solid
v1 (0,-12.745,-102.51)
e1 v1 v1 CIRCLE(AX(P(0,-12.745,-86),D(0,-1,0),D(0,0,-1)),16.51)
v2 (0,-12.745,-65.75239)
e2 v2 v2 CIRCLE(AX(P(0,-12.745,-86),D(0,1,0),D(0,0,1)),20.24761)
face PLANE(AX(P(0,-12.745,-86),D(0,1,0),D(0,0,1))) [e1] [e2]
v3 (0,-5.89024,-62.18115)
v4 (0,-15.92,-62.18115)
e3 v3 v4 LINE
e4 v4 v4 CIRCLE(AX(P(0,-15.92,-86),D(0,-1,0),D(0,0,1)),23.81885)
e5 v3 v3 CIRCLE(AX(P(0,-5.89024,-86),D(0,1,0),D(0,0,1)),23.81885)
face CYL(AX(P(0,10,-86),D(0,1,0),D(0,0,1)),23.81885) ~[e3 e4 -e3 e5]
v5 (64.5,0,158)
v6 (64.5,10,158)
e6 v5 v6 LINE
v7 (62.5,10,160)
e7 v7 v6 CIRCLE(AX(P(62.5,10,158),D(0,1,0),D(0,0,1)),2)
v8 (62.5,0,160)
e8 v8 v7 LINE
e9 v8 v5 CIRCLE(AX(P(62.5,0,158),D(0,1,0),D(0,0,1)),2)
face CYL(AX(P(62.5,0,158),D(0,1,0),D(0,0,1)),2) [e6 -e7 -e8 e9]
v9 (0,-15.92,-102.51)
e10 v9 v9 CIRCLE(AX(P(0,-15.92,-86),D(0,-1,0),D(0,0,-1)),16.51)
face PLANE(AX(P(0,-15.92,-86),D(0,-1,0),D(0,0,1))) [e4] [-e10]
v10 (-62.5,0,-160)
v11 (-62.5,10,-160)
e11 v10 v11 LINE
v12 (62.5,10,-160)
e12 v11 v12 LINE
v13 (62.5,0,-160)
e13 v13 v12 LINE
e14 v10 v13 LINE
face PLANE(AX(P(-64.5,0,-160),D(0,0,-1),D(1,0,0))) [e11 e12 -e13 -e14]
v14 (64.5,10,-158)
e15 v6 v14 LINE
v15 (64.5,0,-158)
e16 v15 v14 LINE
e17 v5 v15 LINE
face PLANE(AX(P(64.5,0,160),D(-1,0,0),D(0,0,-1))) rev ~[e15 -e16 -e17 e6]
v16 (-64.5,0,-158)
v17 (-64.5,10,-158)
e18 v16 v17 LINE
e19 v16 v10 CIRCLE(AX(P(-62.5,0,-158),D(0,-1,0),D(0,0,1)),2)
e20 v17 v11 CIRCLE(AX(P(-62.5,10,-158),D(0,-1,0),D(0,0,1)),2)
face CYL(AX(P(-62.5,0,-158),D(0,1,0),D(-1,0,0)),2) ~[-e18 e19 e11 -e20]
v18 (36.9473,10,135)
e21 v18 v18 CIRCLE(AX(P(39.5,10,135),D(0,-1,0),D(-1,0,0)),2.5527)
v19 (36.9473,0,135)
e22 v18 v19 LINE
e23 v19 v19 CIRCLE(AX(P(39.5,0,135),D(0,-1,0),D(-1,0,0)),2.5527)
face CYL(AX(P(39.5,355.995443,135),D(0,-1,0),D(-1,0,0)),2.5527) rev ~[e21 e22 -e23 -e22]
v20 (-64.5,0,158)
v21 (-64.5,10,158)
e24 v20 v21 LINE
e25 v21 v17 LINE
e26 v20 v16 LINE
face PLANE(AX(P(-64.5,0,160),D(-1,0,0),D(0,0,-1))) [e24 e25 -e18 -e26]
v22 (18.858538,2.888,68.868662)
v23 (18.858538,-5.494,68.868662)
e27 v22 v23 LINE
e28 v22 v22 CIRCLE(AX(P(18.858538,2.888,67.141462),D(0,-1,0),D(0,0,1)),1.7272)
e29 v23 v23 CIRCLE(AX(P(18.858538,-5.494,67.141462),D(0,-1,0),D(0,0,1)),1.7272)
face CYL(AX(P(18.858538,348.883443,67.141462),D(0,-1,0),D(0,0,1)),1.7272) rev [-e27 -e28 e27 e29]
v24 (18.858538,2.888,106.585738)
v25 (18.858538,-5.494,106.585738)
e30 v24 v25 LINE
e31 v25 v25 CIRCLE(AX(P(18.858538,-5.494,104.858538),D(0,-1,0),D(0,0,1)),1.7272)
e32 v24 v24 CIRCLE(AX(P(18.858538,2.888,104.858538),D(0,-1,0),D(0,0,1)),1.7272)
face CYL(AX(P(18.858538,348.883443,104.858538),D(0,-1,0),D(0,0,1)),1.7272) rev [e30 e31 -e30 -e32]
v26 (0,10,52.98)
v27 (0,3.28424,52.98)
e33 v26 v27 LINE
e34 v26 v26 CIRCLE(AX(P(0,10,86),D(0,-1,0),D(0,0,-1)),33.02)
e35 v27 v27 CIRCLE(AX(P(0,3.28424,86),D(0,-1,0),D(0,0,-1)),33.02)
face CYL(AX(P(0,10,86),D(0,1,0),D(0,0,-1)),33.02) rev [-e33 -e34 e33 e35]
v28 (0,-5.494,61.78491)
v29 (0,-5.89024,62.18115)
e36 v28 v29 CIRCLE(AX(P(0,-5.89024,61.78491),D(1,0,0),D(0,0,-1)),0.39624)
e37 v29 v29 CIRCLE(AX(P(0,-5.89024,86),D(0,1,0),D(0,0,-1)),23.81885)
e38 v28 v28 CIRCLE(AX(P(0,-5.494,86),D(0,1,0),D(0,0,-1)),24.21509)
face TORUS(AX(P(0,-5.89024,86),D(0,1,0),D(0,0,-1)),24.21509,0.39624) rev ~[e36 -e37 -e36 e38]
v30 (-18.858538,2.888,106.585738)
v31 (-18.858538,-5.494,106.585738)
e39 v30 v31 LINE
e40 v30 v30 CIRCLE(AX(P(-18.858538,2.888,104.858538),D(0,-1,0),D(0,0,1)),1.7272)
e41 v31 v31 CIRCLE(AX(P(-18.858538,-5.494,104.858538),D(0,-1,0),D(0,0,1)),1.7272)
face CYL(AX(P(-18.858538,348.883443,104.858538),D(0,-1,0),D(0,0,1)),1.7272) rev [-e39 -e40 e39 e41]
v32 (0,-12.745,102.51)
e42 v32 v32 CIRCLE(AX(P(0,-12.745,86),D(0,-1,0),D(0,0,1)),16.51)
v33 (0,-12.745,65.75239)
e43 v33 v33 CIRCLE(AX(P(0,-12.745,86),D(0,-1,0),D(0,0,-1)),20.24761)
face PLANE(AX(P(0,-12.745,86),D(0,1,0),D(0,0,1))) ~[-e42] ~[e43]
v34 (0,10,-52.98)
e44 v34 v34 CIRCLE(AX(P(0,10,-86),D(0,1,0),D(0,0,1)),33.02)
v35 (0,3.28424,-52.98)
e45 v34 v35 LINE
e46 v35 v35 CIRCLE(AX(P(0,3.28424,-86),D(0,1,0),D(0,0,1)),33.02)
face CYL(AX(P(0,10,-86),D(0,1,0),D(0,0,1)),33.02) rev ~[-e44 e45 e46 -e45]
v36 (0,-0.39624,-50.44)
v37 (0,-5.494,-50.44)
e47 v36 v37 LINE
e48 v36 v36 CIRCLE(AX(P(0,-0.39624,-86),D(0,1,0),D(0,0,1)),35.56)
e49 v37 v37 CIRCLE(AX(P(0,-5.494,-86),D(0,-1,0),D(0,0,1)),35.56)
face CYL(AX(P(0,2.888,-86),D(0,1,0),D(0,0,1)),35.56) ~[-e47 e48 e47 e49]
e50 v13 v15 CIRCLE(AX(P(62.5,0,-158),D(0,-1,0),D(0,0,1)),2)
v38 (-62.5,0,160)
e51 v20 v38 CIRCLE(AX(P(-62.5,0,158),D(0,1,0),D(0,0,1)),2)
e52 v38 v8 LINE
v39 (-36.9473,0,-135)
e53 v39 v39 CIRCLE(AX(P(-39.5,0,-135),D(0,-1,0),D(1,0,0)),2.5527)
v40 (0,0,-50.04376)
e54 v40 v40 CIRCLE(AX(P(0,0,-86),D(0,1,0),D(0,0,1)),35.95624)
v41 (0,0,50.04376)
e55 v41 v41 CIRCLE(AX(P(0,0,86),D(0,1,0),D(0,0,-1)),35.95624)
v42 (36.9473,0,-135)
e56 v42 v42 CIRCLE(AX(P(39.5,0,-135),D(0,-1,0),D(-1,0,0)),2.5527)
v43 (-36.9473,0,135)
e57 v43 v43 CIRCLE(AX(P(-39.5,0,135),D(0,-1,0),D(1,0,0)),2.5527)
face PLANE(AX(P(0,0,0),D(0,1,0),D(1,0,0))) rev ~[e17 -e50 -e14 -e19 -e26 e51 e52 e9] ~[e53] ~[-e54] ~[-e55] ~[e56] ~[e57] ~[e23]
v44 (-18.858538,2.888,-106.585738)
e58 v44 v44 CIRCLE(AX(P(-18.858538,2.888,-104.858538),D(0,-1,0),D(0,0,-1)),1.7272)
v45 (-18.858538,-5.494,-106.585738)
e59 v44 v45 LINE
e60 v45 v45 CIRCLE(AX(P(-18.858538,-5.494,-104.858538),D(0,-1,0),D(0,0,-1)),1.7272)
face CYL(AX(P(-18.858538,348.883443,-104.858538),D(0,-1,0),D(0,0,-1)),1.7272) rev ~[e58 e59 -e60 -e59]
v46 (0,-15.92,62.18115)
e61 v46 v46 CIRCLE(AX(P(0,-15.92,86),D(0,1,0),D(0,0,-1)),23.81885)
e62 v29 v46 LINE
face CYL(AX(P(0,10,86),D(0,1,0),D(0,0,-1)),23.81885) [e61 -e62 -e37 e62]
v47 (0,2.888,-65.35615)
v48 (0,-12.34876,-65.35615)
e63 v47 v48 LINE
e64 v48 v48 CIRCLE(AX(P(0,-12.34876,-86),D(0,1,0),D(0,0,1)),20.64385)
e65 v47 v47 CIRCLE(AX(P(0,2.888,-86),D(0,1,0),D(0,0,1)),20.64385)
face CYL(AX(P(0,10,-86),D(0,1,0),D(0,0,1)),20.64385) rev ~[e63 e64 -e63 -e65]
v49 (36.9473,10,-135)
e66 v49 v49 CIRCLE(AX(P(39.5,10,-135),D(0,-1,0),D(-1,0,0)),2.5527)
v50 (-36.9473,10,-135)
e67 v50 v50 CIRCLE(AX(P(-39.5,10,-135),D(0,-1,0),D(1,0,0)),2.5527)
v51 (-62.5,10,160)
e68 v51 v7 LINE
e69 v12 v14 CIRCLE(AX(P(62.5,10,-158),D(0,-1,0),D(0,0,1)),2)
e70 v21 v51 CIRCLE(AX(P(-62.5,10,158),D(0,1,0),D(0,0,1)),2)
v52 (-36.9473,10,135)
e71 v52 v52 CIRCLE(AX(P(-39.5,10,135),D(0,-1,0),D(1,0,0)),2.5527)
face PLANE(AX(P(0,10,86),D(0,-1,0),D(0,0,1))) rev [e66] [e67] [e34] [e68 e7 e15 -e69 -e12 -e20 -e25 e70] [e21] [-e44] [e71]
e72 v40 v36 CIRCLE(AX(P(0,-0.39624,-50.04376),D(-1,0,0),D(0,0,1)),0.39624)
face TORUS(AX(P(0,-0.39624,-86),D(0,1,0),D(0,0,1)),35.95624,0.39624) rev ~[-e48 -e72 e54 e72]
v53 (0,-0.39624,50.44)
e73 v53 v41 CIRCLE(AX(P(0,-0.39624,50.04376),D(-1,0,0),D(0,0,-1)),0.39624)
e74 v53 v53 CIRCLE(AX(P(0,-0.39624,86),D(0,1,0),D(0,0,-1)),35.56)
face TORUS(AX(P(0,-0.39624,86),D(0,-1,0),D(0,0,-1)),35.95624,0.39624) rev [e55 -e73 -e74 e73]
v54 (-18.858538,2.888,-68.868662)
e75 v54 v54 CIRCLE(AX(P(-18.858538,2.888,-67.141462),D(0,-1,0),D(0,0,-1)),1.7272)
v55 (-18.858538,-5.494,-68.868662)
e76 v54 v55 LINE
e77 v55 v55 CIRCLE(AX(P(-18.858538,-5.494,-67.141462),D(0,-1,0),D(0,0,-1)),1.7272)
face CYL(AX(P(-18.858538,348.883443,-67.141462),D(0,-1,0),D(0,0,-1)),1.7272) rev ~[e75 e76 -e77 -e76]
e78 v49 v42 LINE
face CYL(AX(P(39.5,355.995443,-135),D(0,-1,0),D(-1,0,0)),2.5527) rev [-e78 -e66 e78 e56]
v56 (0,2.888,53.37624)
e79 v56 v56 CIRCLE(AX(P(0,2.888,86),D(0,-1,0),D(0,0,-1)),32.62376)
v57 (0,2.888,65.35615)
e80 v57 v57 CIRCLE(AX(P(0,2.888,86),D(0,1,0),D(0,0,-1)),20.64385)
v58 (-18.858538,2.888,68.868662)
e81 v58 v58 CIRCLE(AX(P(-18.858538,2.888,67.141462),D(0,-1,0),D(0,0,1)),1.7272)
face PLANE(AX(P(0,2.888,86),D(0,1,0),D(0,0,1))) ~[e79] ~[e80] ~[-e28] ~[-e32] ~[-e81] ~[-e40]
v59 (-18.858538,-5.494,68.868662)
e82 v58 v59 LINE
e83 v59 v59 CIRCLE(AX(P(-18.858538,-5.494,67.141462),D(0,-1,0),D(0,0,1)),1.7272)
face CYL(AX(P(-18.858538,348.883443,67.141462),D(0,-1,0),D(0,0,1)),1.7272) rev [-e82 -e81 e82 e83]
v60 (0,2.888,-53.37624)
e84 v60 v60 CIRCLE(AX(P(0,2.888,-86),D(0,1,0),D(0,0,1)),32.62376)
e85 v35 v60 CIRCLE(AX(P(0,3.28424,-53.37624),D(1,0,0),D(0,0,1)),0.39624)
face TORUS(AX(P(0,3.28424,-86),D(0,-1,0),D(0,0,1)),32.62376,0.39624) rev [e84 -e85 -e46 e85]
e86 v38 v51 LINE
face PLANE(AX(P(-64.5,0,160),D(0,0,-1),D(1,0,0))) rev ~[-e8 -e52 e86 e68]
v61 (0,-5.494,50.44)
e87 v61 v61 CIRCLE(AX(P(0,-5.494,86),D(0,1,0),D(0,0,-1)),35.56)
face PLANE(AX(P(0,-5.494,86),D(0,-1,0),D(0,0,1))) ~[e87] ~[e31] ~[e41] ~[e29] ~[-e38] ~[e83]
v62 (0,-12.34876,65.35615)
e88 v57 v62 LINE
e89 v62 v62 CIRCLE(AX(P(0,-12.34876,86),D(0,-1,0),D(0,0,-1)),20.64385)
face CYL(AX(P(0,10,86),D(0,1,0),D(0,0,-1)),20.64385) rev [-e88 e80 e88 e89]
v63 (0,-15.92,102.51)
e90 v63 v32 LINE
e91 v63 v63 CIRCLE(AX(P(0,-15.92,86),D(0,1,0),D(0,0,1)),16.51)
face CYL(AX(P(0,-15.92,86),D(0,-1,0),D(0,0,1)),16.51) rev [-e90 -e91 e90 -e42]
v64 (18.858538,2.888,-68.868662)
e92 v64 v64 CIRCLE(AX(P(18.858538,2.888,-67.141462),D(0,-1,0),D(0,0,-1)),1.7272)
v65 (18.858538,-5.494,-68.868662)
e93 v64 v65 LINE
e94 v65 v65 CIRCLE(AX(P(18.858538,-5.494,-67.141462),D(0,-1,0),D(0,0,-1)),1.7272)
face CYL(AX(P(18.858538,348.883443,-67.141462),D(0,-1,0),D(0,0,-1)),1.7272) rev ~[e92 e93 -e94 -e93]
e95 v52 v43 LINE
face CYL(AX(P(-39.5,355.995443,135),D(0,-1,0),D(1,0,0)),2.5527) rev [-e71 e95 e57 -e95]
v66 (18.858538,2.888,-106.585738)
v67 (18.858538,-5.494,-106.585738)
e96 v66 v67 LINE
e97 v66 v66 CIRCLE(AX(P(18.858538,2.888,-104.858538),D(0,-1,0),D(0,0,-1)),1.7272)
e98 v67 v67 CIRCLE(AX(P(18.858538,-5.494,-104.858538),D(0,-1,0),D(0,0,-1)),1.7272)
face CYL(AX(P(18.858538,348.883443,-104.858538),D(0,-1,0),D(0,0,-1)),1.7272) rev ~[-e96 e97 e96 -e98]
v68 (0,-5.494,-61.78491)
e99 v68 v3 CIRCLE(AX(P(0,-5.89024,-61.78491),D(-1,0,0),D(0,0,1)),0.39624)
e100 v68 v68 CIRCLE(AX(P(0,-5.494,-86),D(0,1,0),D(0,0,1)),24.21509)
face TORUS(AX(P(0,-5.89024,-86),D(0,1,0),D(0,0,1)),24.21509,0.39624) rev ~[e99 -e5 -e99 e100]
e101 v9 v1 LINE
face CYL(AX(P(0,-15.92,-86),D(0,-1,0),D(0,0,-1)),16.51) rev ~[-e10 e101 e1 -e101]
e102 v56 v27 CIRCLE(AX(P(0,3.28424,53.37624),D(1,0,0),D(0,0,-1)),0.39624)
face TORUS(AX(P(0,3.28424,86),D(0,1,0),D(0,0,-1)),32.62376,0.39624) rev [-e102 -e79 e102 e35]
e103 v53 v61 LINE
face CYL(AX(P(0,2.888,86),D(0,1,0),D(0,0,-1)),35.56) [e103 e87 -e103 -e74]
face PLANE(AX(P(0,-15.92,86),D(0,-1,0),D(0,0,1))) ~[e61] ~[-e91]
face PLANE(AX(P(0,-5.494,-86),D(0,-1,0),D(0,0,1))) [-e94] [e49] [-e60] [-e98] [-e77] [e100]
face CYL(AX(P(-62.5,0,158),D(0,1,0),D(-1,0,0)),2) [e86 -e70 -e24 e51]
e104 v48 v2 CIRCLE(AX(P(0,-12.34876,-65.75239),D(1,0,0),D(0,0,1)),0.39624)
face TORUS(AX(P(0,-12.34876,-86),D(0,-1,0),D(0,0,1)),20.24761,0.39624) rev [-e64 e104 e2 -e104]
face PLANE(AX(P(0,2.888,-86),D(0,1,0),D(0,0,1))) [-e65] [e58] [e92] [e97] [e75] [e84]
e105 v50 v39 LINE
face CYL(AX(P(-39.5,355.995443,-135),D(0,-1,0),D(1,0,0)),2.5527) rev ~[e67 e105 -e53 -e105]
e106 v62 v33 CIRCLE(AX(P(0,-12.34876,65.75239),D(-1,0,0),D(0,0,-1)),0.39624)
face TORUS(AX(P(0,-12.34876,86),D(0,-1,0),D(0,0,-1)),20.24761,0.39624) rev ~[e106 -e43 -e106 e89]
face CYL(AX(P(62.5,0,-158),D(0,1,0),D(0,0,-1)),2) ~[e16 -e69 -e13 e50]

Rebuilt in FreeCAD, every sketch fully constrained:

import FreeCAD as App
import Part
import Sketcher

V = App.Vector
Q = App.Units.Quantity


def edges_at(feature, points):
    """Names of the edges that pass closest to the given points."""
    edges = feature.Shape.Edges
    near = lambda p: min(range(len(edges)), key=lambda i: edges[i].distToShape(Part.Vertex(*p))[0])
    return sorted({f"Edge{near(p) + 1}" for p in points})


def add_polygon(sketch, points):
    """Adds a closed chain of lines whose ends are joined by coincident constraints."""
    first, n = sketch.GeometryCount, len(points)
    for a, b in zip(points, points[1:] + points[:1]):
        sketch.addGeometry(Part.LineSegment(App.Vector(*a, 0), App.Vector(*b, 0)), False)
    for i in range(n):
        sketch.addConstraint(Sketcher.Constraint("Coincident", first + i, 2, first + (i + 1) % n, 1))

doc = App.newDocument("Part")
body = doc.addObject("PartDesign::Body", "Body")

sketch1 = doc.addObject("Sketcher::SketchObject", "Sketch")
body.addObject(sketch1)
sketch1.AttachmentSupport = (doc.XZ_Plane, [""])
sketch1.MapMode = "FlatFace"
add_polygon(sketch1, [(-64, -160), (-64, 160), (64, 160), (64, -160)])
sketch1.addConstraint([
    Sketcher.Constraint("Vertical", 0),
    Sketcher.Constraint("Horizontal", 1),
    Sketcher.Constraint("Vertical", 2),
    Sketcher.Constraint("Horizontal", 3),
    Sketcher.Constraint("Symmetric", 0, 2, 2, 2, -1, 1),
    Sketcher.Constraint("DistanceX", 1, 1, 1, 2, Q("129 mm")),
    Sketcher.Constraint("DistanceY", 0, 1, 0, 2, Q("320 mm")),
])
pad1 = doc.addObject("PartDesign::Pad", "Pad")
body.addObject(pad1)
pad1.Profile = sketch1
pad1.Length = 10
pad1.Reversed = True

sketch2 = doc.addObject("Sketcher::SketchObject", "Sketch001")
body.addObject(sketch2)
sketch2.AttachmentSupport = (doc.XZ_Plane, [""])
sketch2.MapMode = "FlatFace"
sketch2.AttachmentOffset = App.Placement(V(0, 0, -10), App.Rotation())
sketch2.addGeometry(Part.Circle(V(0, -86, 0), V(0, 0, 1), 24), False)
sketch2.addConstraint([
    Sketcher.Constraint("PointOnObject", 0, 3, -2),
    Sketcher.Constraint("Diameter", 0, Q("1.8755 in")),
    Sketcher.Constraint("DistanceY", 0, 3, -1, 1, Q("86 mm")),
])
pad2 = doc.addObject("PartDesign::Pad", "Pad001")
body.addObject(pad2)
pad2.Profile = sketch2
pad2.Length = 25.92

sketch3 = doc.addObject("Sketcher::SketchObject", "Sketch002")
body.addObject(sketch3)
sketch3.AttachmentSupport = (doc.XZ_Plane, [""])
sketch3.MapMode = "FlatFace"
sketch3.AttachmentOffset = App.Placement(V(0, 0, 15.92), App.Rotation())
sketch3.addGeometry(Part.Circle(V(0, -86, 0), V(0, 0, 1), 17), False)
sketch3.addConstraint([
    Sketcher.Constraint("PointOnObject", 0, 3, -2),
    Sketcher.Constraint("Diameter", 0, Q("1.3 in")),
    Sketcher.Constraint("DistanceY", 0, 3, -1, 1, Q("86 mm")),
])
pocket1 = doc.addObject("PartDesign::Pocket", "Pocket")
body.addObject(pocket1)
pocket1.Profile = sketch3
pocket1.Type = "ThroughAll"

sketch4 = doc.addObject("Sketcher::SketchObject", "Sketch003")
body.addObject(sketch4)
sketch4.AttachmentSupport = (doc.XZ_Plane, [""])
sketch4.MapMode = "FlatFace"
sketch4.AttachmentOffset = App.Placement(V(0, 0, -10), App.Rotation())
sketch4.addGeometry(Part.Circle(V(0, -86, 0), V(0, 0, 1), 21), False)
sketch4.addConstraint([
    Sketcher.Constraint("PointOnObject", 0, 3, -2),
    Sketcher.Constraint("Diameter", 0, Q("1.6255 in")),
    Sketcher.Constraint("DistanceY", 0, 3, -1, 1, Q("86 mm")),
])
pocket2 = doc.addObject("PartDesign::Pocket", "Pocket001")
body.addObject(pocket2)
pocket2.Profile = sketch4
pocket2.Length = 22.745
pocket2.Reversed = True

sketch5 = doc.addObject("Sketcher::SketchObject", "Sketch004")
body.addObject(sketch5)
sketch5.AttachmentSupport = (doc.XZ_Plane, [""])
sketch5.MapMode = "FlatFace"
sketch5.AttachmentOffset = App.Placement(V(0, 0, -10), App.Rotation())
sketch5.addGeometry(Part.Circle(V(0, -86, 0), V(0, 0, 1), 33), False)
sketch5.addConstraint([
    Sketcher.Constraint("PointOnObject", 0, 3, -2),
    Sketcher.Constraint("Diameter", 0, Q("2.6 in")),
    Sketcher.Constraint("DistanceY", 0, 3, -1, 1, Q("86 mm")),
])
pocket3 = doc.addObject("PartDesign::Pocket", "Pocket002")
body.addObject(pocket3)
pocket3.Profile = sketch5
pocket3.Length = Q("0.28 in")
pocket3.Reversed = True

sketch6 = doc.addObject("Sketcher::SketchObject", "Sketch005")
body.addObject(sketch6)
sketch6.AttachmentSupport = (doc.XZ_Plane, [""])
sketch6.MapMode = "FlatFace"
sketch6.AttachmentOffset = App.Placement(V(0, 0, -2.888), App.Rotation())
sketch6.addGeometry([
    Part.Circle(V(0, -86, 0), V(0, 0, 1), 36),
    Part.Circle(V(0, -86, 0), V(0, 0, 1), 24),
], False)
sketch6.addConstraint([
    Sketcher.Constraint("Coincident", 1, 3, 0, 3),
    Sketcher.Constraint("PointOnObject", 0, 3, -2),
    Sketcher.Constraint("Diameter", 0, Q("2.8 in")),
    Sketcher.Constraint("Diameter", 1, Q("1.8755 in")),
    Sketcher.Constraint("DistanceY", 0, 3, -1, 1, Q("86 mm")),
])
pad3 = doc.addObject("PartDesign::Pad", "Pad002")
body.addObject(pad3)
pad3.Profile = sketch6
pad3.Length = Q("0.33 in")

sketch7 = doc.addObject("Sketcher::SketchObject", "Sketch006")
body.addObject(sketch7)
sketch7.AttachmentSupport = (doc.XZ_Plane, [""])
sketch7.MapMode = "FlatFace"
sketch7.AttachmentOffset = App.Placement(V(0, 0, -2.888), App.Rotation())
sketch7.addGeometry([
    Part.Circle(V(-18.9, -104.9, 0), V(0, 0, 1), 1.7),
    Part.Circle(V(18.9, -104.9, 0), V(0, 0, 1), 1.7),
    Part.Circle(V(18.9, -67.1, 0), V(0, 0, 1), 1.7),
    Part.Circle(V(-18.9, -67.1, 0), V(0, 0, 1), 1.7),
], False)
sketch7.addConstraint([
    Sketcher.Constraint("Equal", 0, 1),
    Sketcher.Constraint("Equal", 1, 2),
    Sketcher.Constraint("Equal", 2, 3),
    Sketcher.Constraint("Symmetric", 0, 3, 1, 3, -2),
    Sketcher.Constraint("Symmetric", 2, 3, 3, 3, -2),
    Sketcher.Constraint("Vertical", 1, 3, 2, 3),
    Sketcher.Constraint("Diameter", 0, Q("0.136 in")),
    Sketcher.Constraint("DistanceX", 0, 3, -1, 1, Q("18.858538 mm")),
    Sketcher.Constraint("DistanceY", 0, 3, -1, 1, Q("104.858538 mm")),
    Sketcher.Constraint("DistanceY", 2, 3, -1, 1, Q("67.141462 mm")),
])
doc.recompute()
hole = doc.addObject("PartDesign::Hole", "Hole")
body.addObject(hole)
hole.Profile = sketch7
hole.ThreadType = "None"
hole.Diameter = Q("0.136 in")
hole.DepthType = "ThroughAll"
hole.Reversed = True
doc.recompute()

mirrored = doc.addObject("PartDesign::Mirrored", "Mirrored")
body.addObject(mirrored)
mirrored.Originals = [pad2, pocket1, pocket2, pocket3, pad3, hole]
mirrored.MirrorPlane = (doc.XY_Plane, [""])
body.Tip = mirrored
doc.recompute()

fillet = doc.addObject("PartDesign::Fillet", "Fillet")
body.addObject(fillet)
fillet.Base = (mirrored, edges_at(mirrored, [
    (0, -12.745, -106.644),
    (0, 2.888, -119.02),
    (0, 0, -121.56),
    (0, -5.494, -109.819),
    (0, -12.745, 106.644),
    (0, 2.888, 119.02),
    (0, -5.494, 109.819),
    (0, 0, 121.56),
]))
fillet.Radius = Q("0.0156 in")
doc.recompute()

fillet2 = doc.addObject("PartDesign::Fillet", "Fillet001")
body.addObject(fillet2)
fillet2.Base = (fillet, edges_at(fillet, [
    (-64.5, 5, -160),
    (64.5, 5, -160),
    (64.5, 5, 160),
    (-64.5, 5, 160),
]))
fillet2.Radius = 2

sketch8 = doc.addObject("Sketcher::SketchObject", "Sketch007")
body.addObject(sketch8)
sketch8.AttachmentSupport = (doc.XZ_Plane, [""])
sketch8.MapMode = "FlatFace"
sketch8.AttachmentOffset = App.Placement(V(0, 0, -10), App.Rotation())
sketch8.addGeometry(Part.Circle(V(-39.5, -135, 0), V(0, 0, 1), 2.6), False)
sketch8.addConstraint([
    Sketcher.Constraint("Diameter", 0, Q("0.201 in")),
    Sketcher.Constraint("DistanceX", 0, 3, -1, 1, Q("39.5 mm")),
    Sketcher.Constraint("DistanceY", 0, 3, -1, 1, Q("135 mm")),
])
doc.recompute()
hole2 = doc.addObject("PartDesign::Hole", "Hole001")
body.addObject(hole2)
hole2.Profile = sketch8
hole2.ThreadType = "None"
hole2.Diameter = Q("0.201 in")
hole2.DepthType = "ThroughAll"
hole2.Reversed = True
doc.recompute()

mirrored2 = doc.addObject("PartDesign::Mirrored", "Mirrored001")
body.addObject(mirrored2)
mirrored2.Originals = [hole2]
mirrored2.MirrorPlane = (doc.YZ_Plane, [""])
body.Tip = mirrored2
doc.recompute()

mirrored3 = doc.addObject("PartDesign::Mirrored", "Mirrored002")
body.addObject(mirrored3)
mirrored3.Originals = [hole2]
mirrored3.MirrorPlane = (doc.XY_Plane, [""])
body.Tip = mirrored3

sketch9 = doc.addObject("Sketcher::SketchObject", "Sketch008")
body.addObject(sketch9)
sketch9.AttachmentSupport = (doc.XZ_Plane, [""])
sketch9.MapMode = "FlatFace"
sketch9.AttachmentOffset = App.Placement(V(0, 0, -10), App.Rotation())
sketch9.addGeometry(Part.Circle(V(39.5, 135, 0), V(0, 0, 1), 2.6), False)
sketch9.addConstraint([
    Sketcher.Constraint("Diameter", 0, Q("0.201 in")),
    Sketcher.Constraint("DistanceX", -1, 1, 0, 3, Q("39.5 mm")),
    Sketcher.Constraint("DistanceY", -1, 1, 0, 3, Q("135 mm")),
])
doc.recompute()
hole3 = doc.addObject("PartDesign::Hole", "Hole002")
body.addObject(hole3)
hole3.Profile = sketch9
hole3.ThreadType = "None"
hole3.Diameter = Q("0.201 in")
hole3.DepthType = "ThroughAll"
hole3.Reversed = True

doc.recompute()
